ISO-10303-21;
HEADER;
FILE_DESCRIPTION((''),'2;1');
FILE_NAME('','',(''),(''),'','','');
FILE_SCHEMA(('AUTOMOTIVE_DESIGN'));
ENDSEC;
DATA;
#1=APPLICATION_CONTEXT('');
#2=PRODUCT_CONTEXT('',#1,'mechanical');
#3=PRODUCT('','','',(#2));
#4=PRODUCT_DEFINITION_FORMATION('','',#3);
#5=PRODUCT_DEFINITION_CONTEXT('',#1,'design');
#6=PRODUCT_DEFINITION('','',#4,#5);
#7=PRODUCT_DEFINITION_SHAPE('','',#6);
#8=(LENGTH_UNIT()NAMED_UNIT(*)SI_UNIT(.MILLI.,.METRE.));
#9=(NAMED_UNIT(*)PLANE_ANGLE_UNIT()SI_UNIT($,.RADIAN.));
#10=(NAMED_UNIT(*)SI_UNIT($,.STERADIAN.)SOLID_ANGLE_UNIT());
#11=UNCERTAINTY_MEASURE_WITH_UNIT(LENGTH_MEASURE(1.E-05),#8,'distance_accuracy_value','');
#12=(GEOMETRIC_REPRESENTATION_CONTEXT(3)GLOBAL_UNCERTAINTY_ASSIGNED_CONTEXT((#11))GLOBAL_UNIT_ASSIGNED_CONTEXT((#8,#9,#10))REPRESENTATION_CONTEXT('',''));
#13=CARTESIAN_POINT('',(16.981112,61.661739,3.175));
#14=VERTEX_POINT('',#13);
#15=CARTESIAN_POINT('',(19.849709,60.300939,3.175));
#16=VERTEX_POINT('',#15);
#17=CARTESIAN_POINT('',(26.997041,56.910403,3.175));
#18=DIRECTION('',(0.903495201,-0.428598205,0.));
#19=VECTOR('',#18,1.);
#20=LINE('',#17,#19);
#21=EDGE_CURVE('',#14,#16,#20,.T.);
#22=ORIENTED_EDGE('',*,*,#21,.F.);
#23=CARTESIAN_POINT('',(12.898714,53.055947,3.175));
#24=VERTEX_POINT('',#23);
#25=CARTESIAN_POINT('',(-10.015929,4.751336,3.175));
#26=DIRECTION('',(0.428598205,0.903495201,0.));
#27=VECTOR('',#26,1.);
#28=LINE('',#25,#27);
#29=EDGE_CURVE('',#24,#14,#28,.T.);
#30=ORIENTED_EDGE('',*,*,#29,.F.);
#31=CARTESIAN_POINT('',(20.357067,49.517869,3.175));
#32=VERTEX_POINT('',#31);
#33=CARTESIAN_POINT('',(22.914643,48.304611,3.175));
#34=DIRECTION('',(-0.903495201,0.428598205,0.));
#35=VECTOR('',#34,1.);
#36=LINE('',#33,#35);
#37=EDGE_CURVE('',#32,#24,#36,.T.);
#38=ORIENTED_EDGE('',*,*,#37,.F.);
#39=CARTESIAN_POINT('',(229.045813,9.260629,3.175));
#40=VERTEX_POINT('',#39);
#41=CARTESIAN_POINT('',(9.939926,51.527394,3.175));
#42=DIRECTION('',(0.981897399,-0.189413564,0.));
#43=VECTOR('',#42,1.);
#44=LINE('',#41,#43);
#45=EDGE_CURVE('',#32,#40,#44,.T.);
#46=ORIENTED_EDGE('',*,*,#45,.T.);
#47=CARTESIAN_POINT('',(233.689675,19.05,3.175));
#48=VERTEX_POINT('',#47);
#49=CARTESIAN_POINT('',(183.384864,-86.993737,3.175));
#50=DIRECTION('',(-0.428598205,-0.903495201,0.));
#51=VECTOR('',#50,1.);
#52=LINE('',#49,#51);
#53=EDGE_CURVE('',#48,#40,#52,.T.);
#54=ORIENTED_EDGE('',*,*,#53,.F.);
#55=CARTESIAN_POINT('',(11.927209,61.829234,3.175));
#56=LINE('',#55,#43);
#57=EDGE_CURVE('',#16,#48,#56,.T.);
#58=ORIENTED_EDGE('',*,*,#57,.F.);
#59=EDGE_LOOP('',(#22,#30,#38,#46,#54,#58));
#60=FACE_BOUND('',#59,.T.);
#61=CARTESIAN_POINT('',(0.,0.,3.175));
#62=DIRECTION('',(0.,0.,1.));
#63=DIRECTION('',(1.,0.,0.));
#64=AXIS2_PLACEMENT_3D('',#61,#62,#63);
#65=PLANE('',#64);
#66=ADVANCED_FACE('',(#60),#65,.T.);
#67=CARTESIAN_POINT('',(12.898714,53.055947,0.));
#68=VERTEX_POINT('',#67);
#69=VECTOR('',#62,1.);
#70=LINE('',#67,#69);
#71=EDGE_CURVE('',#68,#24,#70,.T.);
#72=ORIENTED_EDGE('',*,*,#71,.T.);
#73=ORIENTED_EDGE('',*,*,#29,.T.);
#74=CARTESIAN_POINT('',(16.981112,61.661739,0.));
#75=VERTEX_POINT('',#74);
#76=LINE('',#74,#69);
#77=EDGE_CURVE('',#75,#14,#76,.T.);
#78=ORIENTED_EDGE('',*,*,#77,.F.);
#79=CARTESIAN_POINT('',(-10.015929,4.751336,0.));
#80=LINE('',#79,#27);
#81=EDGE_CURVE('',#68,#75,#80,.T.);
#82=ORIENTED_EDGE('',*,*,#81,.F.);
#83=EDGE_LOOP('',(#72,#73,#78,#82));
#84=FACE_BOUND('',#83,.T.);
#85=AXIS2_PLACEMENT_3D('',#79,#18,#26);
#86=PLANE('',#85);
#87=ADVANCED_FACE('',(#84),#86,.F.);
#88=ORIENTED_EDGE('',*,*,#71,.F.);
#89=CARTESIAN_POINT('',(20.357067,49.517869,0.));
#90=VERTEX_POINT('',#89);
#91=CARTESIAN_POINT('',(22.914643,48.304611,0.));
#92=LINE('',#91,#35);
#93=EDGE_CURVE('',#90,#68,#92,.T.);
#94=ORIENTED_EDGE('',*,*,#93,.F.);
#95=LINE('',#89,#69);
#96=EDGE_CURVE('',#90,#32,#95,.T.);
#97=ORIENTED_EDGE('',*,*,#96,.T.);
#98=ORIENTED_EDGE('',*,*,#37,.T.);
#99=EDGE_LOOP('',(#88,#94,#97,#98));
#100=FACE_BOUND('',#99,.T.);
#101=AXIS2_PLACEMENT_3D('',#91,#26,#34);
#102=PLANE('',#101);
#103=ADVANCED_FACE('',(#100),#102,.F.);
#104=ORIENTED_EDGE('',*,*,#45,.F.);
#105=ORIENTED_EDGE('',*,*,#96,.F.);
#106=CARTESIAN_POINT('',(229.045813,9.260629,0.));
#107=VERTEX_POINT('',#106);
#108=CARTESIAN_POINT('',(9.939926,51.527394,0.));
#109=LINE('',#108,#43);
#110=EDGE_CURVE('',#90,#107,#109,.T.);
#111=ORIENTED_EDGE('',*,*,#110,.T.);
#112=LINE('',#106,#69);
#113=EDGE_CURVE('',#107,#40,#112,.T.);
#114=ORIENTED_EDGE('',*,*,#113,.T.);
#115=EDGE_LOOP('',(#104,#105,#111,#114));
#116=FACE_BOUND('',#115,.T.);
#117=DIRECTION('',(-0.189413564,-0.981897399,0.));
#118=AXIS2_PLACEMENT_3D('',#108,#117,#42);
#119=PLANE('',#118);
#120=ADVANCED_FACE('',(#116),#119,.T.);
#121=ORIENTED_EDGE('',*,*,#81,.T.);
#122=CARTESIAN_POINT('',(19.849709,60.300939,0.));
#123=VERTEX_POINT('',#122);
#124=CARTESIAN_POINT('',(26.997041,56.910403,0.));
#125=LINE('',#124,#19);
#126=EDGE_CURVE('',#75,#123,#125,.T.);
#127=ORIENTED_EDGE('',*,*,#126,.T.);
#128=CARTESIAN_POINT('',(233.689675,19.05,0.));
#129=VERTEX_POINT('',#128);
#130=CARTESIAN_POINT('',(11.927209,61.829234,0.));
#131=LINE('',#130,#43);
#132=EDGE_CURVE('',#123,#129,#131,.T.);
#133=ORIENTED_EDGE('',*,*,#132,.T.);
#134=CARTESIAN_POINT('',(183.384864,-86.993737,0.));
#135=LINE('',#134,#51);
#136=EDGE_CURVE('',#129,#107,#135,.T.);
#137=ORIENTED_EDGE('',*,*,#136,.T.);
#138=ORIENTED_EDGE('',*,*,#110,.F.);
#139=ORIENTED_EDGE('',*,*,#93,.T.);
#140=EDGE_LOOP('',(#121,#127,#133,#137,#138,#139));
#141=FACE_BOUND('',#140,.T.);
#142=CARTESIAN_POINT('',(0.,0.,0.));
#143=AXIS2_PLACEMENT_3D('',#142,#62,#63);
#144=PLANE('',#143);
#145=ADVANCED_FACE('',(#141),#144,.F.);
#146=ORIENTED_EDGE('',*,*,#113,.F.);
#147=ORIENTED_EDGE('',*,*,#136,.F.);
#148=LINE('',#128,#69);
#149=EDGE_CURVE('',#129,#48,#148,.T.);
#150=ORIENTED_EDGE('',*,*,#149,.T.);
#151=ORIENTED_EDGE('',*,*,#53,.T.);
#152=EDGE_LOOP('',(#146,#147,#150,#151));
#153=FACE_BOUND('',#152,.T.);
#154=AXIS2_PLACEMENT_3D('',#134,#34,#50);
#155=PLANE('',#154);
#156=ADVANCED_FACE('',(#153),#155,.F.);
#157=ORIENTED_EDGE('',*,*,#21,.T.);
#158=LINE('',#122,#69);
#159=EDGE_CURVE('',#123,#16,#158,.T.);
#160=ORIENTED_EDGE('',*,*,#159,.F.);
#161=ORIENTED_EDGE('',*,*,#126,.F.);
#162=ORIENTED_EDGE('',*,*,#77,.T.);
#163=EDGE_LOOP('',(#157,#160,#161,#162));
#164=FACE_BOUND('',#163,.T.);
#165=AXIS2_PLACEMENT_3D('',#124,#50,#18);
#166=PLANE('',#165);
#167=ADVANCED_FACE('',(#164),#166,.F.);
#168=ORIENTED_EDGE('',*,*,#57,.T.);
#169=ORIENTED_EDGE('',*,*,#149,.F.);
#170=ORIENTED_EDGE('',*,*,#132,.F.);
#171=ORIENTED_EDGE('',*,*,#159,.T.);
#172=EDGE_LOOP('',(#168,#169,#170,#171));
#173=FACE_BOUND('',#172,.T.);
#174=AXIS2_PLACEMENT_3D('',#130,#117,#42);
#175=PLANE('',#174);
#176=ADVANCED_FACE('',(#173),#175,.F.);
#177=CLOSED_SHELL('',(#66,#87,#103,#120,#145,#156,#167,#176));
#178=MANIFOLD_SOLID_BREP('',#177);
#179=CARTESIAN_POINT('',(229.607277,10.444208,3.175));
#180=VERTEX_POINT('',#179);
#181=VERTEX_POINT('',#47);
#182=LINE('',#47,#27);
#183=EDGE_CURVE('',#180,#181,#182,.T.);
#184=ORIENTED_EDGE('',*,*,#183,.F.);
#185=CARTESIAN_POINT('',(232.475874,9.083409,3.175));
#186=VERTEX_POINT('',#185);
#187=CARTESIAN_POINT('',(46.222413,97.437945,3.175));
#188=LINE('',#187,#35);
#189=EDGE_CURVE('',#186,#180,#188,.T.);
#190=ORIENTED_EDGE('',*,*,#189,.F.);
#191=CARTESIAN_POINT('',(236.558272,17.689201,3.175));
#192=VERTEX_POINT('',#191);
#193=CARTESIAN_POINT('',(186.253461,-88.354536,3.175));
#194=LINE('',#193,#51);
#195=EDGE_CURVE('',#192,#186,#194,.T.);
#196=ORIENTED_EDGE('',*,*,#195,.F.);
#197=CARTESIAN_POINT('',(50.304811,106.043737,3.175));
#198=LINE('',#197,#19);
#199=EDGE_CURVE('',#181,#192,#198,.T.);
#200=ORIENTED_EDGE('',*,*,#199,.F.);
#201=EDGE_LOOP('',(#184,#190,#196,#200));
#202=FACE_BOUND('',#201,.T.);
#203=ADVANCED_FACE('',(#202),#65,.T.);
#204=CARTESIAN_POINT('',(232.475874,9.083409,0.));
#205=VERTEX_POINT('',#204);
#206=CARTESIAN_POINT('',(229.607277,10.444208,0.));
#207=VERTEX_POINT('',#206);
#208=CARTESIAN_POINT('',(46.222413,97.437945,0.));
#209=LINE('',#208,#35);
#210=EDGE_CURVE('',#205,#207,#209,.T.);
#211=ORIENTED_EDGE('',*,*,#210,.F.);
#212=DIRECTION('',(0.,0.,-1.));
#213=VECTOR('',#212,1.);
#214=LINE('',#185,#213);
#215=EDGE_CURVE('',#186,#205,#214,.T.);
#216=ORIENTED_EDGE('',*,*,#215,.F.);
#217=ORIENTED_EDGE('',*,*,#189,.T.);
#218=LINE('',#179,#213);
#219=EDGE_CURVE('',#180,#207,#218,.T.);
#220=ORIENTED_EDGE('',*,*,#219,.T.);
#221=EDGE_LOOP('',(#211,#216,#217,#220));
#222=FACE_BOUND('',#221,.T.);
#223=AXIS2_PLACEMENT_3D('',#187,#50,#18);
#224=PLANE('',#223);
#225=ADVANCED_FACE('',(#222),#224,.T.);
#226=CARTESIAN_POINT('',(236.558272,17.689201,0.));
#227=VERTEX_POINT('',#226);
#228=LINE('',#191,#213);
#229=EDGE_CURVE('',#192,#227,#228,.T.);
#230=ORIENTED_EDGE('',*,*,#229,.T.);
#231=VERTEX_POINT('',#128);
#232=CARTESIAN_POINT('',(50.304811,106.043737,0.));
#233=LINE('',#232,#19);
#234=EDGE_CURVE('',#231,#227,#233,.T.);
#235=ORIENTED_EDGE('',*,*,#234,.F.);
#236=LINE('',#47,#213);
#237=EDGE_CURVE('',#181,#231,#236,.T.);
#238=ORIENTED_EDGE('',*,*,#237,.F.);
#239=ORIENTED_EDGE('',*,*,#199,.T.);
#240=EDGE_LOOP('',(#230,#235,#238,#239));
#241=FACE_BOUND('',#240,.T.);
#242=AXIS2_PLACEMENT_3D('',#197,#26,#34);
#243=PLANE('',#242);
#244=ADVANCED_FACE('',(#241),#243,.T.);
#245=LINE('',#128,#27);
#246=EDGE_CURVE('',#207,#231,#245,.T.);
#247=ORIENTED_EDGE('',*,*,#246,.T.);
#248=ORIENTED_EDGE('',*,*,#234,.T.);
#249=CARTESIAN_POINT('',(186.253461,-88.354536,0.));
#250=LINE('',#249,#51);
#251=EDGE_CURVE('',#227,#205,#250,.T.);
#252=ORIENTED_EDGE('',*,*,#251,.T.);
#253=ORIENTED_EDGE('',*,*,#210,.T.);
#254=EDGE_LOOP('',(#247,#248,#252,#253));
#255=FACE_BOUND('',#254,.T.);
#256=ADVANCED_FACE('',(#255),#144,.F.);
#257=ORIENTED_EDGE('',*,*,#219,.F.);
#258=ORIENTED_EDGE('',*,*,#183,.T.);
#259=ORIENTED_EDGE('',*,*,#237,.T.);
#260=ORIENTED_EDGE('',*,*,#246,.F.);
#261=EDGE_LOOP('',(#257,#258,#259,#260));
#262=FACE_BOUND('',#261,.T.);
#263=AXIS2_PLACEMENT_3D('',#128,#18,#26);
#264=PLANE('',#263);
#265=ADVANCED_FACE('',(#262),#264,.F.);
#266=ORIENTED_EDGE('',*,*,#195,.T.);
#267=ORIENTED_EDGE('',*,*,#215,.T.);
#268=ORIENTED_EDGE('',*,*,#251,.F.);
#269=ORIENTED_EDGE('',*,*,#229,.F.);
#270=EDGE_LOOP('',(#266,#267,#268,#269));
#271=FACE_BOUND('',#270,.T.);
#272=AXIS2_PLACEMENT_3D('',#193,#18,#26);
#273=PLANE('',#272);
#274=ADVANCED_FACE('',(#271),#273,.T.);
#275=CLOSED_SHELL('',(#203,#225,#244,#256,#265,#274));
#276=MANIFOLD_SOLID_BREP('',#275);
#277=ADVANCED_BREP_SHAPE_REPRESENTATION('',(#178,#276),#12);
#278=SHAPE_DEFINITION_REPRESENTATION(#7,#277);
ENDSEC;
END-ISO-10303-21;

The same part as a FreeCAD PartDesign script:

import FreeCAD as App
import Part
import Sketcher
Q = App.Units.Quantity

doc = App.newDocument("Part")
body = doc.addObject("PartDesign::Body", "Body")

# Sketch on XY plane
sketch1 = body.newObject("Sketcher::SketchObject", "Sketch")
sketch1.AttachmentSupport = (doc.getObject("XY_Plane"), [""])
sketch1.MapMode = "FlatFace"
sketch1.addGeometry(Part.LineSegment(App.Vector(233.689675, 19.05, 0), App.Vector(0, 19.05, 0)), False)
sketch1.addGeometry(Part.LineSegment(App.Vector(0, 19.05, 0), App.Vector(-2.639109, 20.301935, 0)), False)
sketch1.addGeometry(Part.LineSegment(App.Vector(-2.639109, 20.301935, 0), App.Vector(-6.721507, 11.696144, 0)), False)
sketch1.addGeometry(Part.LineSegment(App.Vector(-6.721507, 11.696144, 0), App.Vector(-4.082398, 10.444208, 0)), False)
sketch1.addGeometry(Part.LineSegment(App.Vector(-4.082398, 10.444208, 0), App.Vector(-7.376854, 3.499417, 0)), False)
sketch1.addGeometry(Part.LineSegment(App.Vector(-7.376854, 3.499417, 0), App.Vector(0, 0, 0)), False)
sketch1.addGeometry(Part.LineSegment(App.Vector(0, 0, 0), App.Vector(224.652775, 0, 0)), False)
sketch1.addGeometry(Part.LineSegment(App.Vector(224.652775, 0, 0), App.Vector(224.700845, 0.101333, 0)), False)
sketch1.addGeometry(Part.LineSegment(App.Vector(224.700845, 0.101333, 0), App.Vector(116.204157, 1.00303, 0)), False)
sketch1.addGeometry(Part.LineSegment(App.Vector(116.204157, 1.00303, 0), App.Vector(116.2044, 1.032233, 0)), False)
sketch1.addGeometry(Part.LineSegment(App.Vector(116.2044, 1.032233, 0), App.Vector(224.714645, 0.130423, 0)), False)
sketch1.addGeometry(Part.LineSegment(App.Vector(224.714645, 0.130423, 0), App.Vector(229.607277, 10.444208, 0)), False)
sketch1.addGeometry(Part.LineSegment(App.Vector(229.607277, 10.444208, 0), App.Vector(232.475874, 9.083409, 0)), False)
sketch1.addGeometry(Part.LineSegment(App.Vector(232.475874, 9.083409, 0), App.Vector(236.558272, 17.689201, 0)), False)
sketch1.addGeometry(Part.LineSegment(App.Vector(236.558272, 17.689201, 0), App.Vector(233.689675, 19.05, 0)), False)
sketch1.addConstraint(Sketcher.Constraint("Coincident", 0, 2, 1, 1))
sketch1.addConstraint(Sketcher.Constraint("Coincident", 1, 2, 2, 1))
sketch1.addConstraint(Sketcher.Constraint("Coincident", 2, 2, 3, 1))
sketch1.addConstraint(Sketcher.Constraint("Coincident", 3, 2, 4, 1))
sketch1.addConstraint(Sketcher.Constraint("Coincident", 4, 2, 5, 1))
sketch1.addConstraint(Sketcher.Constraint("Coincident", 5, 2, 6, 1))
sketch1.addConstraint(Sketcher.Constraint("Coincident", 6, 2, 7, 1))
sketch1.addConstraint(Sketcher.Constraint("Coincident", 7, 2, 8, 1))
sketch1.addConstraint(Sketcher.Constraint("Coincident", 8, 2, 9, 1))
sketch1.addConstraint(Sketcher.Constraint("Coincident", 9, 2, 10, 1))
sketch1.addConstraint(Sketcher.Constraint("Coincident", 10, 2, 11, 1))
sketch1.addConstraint(Sketcher.Constraint("Coincident", 11, 2, 12, 1))
sketch1.addConstraint(Sketcher.Constraint("Coincident", 12, 2, 13, 1))
sketch1.addConstraint(Sketcher.Constraint("Coincident", 13, 2, 14, 1))
sketch1.addConstraint(Sketcher.Constraint("Coincident", 14, 2, 0, 1))
sketch1.addConstraint(Sketcher.Constraint("Horizontal", 0))
sketch1.addConstraint(Sketcher.Constraint("Horizontal", 6))
sketch1.addConstraint(Sketcher.Constraint("Coincident", 5, 2, -1, 1))
sketch1.addConstraint(Sketcher.Constraint("PointOnObject", 0, 2, -2))
sketch1.addConstraint(Sketcher.Constraint("Perpendicular", 1, 2))
sketch1.addConstraint(Sketcher.Constraint("Perpendicular", 2, 3))
sketch1.addConstraint(Sketcher.Constraint("Perpendicular", 3, 4))
sketch1.addConstraint(Sketcher.Constraint("Perpendicular", 4, 5))
sketch1.addConstraint(Sketcher.Constraint("Perpendicular", 5, 7))
sketch1.addConstraint(Sketcher.Constraint("Perpendicular", 8, 9))
sketch1.addConstraint(Sketcher.Constraint("Parallel", 8, 10))
sketch1.addConstraint(Sketcher.Constraint("Parallel", 7, 11))
sketch1.addConstraint(Sketcher.Constraint("Perpendicular", 11, 12))
sketch1.addConstraint(Sketcher.Constraint("Perpendicular", 12, 13))
sketch1.addConstraint(Sketcher.Constraint("Perpendicular", 13, 14))
sketch1.addConstraint(Sketcher.Constraint("Horizontal", 3, 2, 11, 2))
sketch1.addConstraint(Sketcher.Constraint("Equal", 1, 3))
sketch1.addConstraint(Sketcher.Constraint("Equal", 2, 13))
sketch1.addConstraint(Sketcher.Constraint("DistanceY", -1, 1, 0, 2, Q("0.75 in")))
sketch1.addConstraint(Sketcher.Constraint("Distance", 1, Q("0.115 in")))
sketch1.addConstraint(Sketcher.Constraint("Distance", 2, Q("0.375 in")))
sketch1.addConstraint(Sketcher.Constraint("Distance", 12, Q("0.125 in")))
sketch1.addConstraint(Sketcher.Constraint("DistanceY", 7, 2, 3, 2, Q("0.4071998 in")))
sketch1.addConstraint(Sketcher.Constraint("DistanceY", 7, 2, 8, 2, Q("0.0354999 in")))
sketch1.addConstraint(Sketcher.Constraint("DistanceX", -1, 1, 9, 2, 116.2044))
sketch1.addConstraint(Sketcher.Constraint("DistanceY", -1, 1, 13, 2, 17.689201))
sketch1.addConstraint(Sketcher.Constraint("DistanceY", 7, 2, 9, 2, 0.930901))
sketch1.addConstraint(Sketcher.Constraint("DistanceX", 7, 2, 10, 2, 0.0138))
sketch1.addConstraint(Sketcher.Constraint("DistanceX", 0, 2, 0, 1, 233.689675))
pad1 = body.newObject("PartDesign::Pad", "Pad")
pad1.Profile = sketch1
pad1.Length = Q("0.125 in")

# Sketch on XY plane
sketch2 = body.newObject("Sketcher::SketchObject", "Sketch001")
sketch2.AttachmentSupport = (doc.getObject("XY_Plane"), [""])
sketch2.MapMode = "FlatFace"
sketch2.AttachmentOffset = App.Placement(App.Vector(0, 0, 0.125 * 25.4), App.Rotation())
sketch2.addGeometry(Part.LineSegment(App.Vector(-7.4, 9.5, 0), App.Vector(-7.4, 0, 0)), False)
sketch2.addGeometry(Part.LineSegment(App.Vector(-7.4, 0, 0), App.Vector(236.6, 0, 0)), False)
sketch2.addGeometry(Part.LineSegment(App.Vector(236.6, 0, 0), App.Vector(236.6, 4.8, 0)), False)
sketch2.addGeometry(Part.LineSegment(App.Vector(236.6, 4.8, 0), App.Vector(229.2, 9.5, 0)), False)
sketch2.addGeometry(Part.LineSegment(App.Vector(229.2, 9.5, 0), App.Vector(-7.4, 9.5, 0)), False)
sketch2.addConstraint(Sketcher.Constraint("Coincident", 0, 2, 1, 1))
sketch2.addConstraint(Sketcher.Constraint("Coincident", 1, 2, 2, 1))
sketch2.addConstraint(Sketcher.Constraint("Coincident", 2, 2, 3, 1))
sketch2.addConstraint(Sketcher.Constraint("Coincident", 3, 2, 4, 1))
sketch2.addConstraint(Sketcher.Constraint("Coincident", 4, 2, 0, 1))
sketch2.addConstraint(Sketcher.Constraint("Vertical", 0))
sketch2.addConstraint(Sketcher.Constraint("Horizontal", 1))
sketch2.addConstraint(Sketcher.Constraint("Vertical", 2))
sketch2.addConstraint(Sketcher.Constraint("Horizontal", 4))
sketch2.addConstraint(Sketcher.Constraint("PointOnObject", 0, 2, -1))
sketch2.addConstraint(Sketcher.Constraint("DistanceY", 0, 2, 0, 1, Q("0.375 in")))
sketch2.addConstraint(Sketcher.Constraint("DistanceY", 2, 1, 2, 2, Q("0.1875 in")))
sketch2.addConstraint(Sketcher.Constraint("DistanceX", 4, 2, 4, 1, 236.548079))
sketch2.addConstraint(Sketcher.Constraint("Distance", 3, 8.789191))
sketch2.addConstraint(Sketcher.Constraint("DistanceX", 0, 2, -1, 1, 7.376854))
pocket1 = body.newObject("PartDesign::Pocket", "Pocket")
pocket1.Profile = sketch2
pocket1.Type = "ThroughAll"

# Sketch on XY plane
sketch3 = body.newObject("Sketcher::SketchObject", "Sketch002")
sketch3.AttachmentSupport = (doc.getObject("XY_Plane"), [""])
sketch3.MapMode = "FlatFace"
sketch3.AttachmentOffset = App.Placement(App.Vector(0, 0, 0.125 * 25.4), App.Rotation())
sketch3.addGeometry(Part.LineSegment(App.Vector(-4.1, 10.4, 0), App.Vector(-4.5, 9.5, 0)), False)
sketch3.addGeometry(Part.LineSegment(App.Vector(-4.5, 9.5, 0), App.Vector(-2.1, 9.5, 0)), False)
sketch3.addGeometry(Part.LineSegment(App.Vector(-2.1, 9.5, 0), App.Vector(-4.1, 10.4, 0)), False)
sketch3.addConstraint(Sketcher.Constraint("Coincident", 0, 2, 1, 1))
sketch3.addConstraint(Sketcher.Constraint("Coincident", 1, 2, 2, 1))
sketch3.addConstraint(Sketcher.Constraint("Coincident", 2, 2, 0, 1))
sketch3.addConstraint(Sketcher.Constraint("Horizontal", 1))
sketch3.addConstraint(Sketcher.Constraint("Perpendicular", 0, 2))
sketch3.addConstraint(Sketcher.Constraint("DistanceY", -1, 1, 0, 2, Q("0.375 in")))
sketch3.addConstraint(Sketcher.Constraint("Distance", 0, 1.017391))
sketch3.addConstraint(Sketcher.Constraint("DistanceX", 1, 1, 1, 2, 2.373765))
sketch3.addConstraint(Sketcher.Constraint("DistanceX", 0, 2, -1, 1, 4.51845))
pocket2 = body.newObject("PartDesign::Pocket", "Pocket001")
pocket2.Profile = sketch3
pocket2.Type = "ThroughAll"

# Sketch on XY plane
sketch4 = body.newObject("Sketcher::SketchObject", "Sketch003")
sketch4.AttachmentSupport = (doc.getObject("XY_Plane"), [""])
sketch4.MapMode = "FlatFace"
sketch4.AttachmentOffset = App.Placement(App.Vector(0, 0, 0.125 * 25.4), App.Rotation())
sketch4.addGeometry(Part.LineSegment(App.Vector(40, 111, 0), App.Vector(-7, 12, 0)), False)
sketch4.addGeometry(Part.LineSegment(App.Vector(-7, 12, 0), App.Vector(187, -80, 0)), False)
sketch4.addGeometry(Part.LineSegment(App.Vector(187, -80, 0), App.Vector(234, 19, 0)), False)
sketch4.addGeometry(Part.LineSegment(App.Vector(234, 19, 0), App.Vector(40, 111, 0)), False)
sketch4.addConstraint(Sketcher.Constraint("Coincident", 0, 2, 1, 1))
sketch4.addConstraint(Sketcher.Constraint("Coincident", 1, 2, 2, 1))
sketch4.addConstraint(Sketcher.Constraint("Coincident", 2, 2, 3, 1))
sketch4.addConstraint(Sketcher.Constraint("Coincident", 3, 2, 0, 1))
sketch4.addConstraint(Sketcher.Constraint("Perpendicular", 0, 1))
sketch4.addConstraint(Sketcher.Constraint("Perpendicular", 1, 2))
sketch4.addConstraint(Sketcher.Constraint("Perpendicular", 2, 3))
sketch4.addConstraint(Sketcher.Constraint("DistanceY", -1, 1, 2, 2, Q("0.75 in")))
sketch4.addConstraint(Sketcher.Constraint("Distance", 1, Q("8.4275 in")))
sketch4.addConstraint(Sketcher.Constraint("DistanceX", -1, 1, 1, 2, 186.67932))
sketch4.addConstraint(Sketcher.Constraint("DistanceY", -1, 1, 3, 2, 110.795089))
sketch4.addConstraint(Sketcher.Constraint("Distance", 0, 109.683975))
pocket3 = body.newObject("PartDesign::Pocket", "Pocket002")
pocket3.Profile = sketch4
pocket3.Type = "ThroughAll"
body2 = doc.addObject("PartDesign::Body", "Body001")

# Sketch on XY plane
sketch5 = body2.newObject("Sketcher::SketchObject", "Sketch004")
sketch5.AttachmentSupport = (doc.getObject("XY_Plane001"), [""])
sketch5.MapMode = "FlatFace"
sketch5.AttachmentOffset = App.Placement(App.Vector(0, 0, 0.125 * 25.4), App.Rotation())
sketch5.addGeometry(Part.LineSegment(App.Vector(233.689675, 19.05, 0), App.Vector(19.849709, 60.300939, 0)), False)
sketch5.addGeometry(Part.LineSegment(App.Vector(19.849709, 60.300939, 0), App.Vector(16.981112, 61.661739, 0)), False)
sketch5.addGeometry(Part.LineSegment(App.Vector(16.981112, 61.661739, 0), App.Vector(12.898714, 53.055947, 0)), False)
sketch5.addGeometry(Part.LineSegment(App.Vector(12.898714, 53.055947, 0), App.Vector(20.357067, 49.517869, 0)), False)
sketch5.addGeometry(Part.LineSegment(App.Vector(20.357067, 49.517869, 0), App.Vector(229.045813, 9.260629, 0)), False)
sketch5.addGeometry(Part.LineSegment(App.Vector(229.045813, 9.260629, 0), App.Vector(229.607277, 10.444208, 0)), False)
sketch5.addGeometry(Part.LineSegment(App.Vector(229.607277, 10.444208, 0), App.Vector(233.689675, 19.05, 0)), False)
sketch5.addConstraint(Sketcher.Constraint("Coincident", 0, 2, 1, 1))
sketch5.addConstraint(Sketcher.Constraint("Coincident", 1, 2, 2, 1))
sketch5.addConstraint(Sketcher.Constraint("Coincident", 2, 2, 3, 1))
sketch5.addConstraint(Sketcher.Constraint("Coincident", 3, 2, 4, 1))
sketch5.addConstraint(Sketcher.Constraint("Coincident", 4, 2, 5, 1))
sketch5.addConstraint(Sketcher.Constraint("Coincident", 5, 2, 6, 1))
sketch5.addConstraint(Sketcher.Constraint("Coincident", 6, 2, 0, 1))
sketch5.addConstraint(Sketcher.Constraint("DistanceY", -1, 1, 6, 2, Q("0.75 in")))
sketch5.addConstraint(Sketcher.Constraint("Distance", 1, Q("0.125 in")))
sketch5.addConstraint(Sketcher.Constraint("Distance", 2, Q("0.375 in")))
sketch5.addConstraint(Sketcher.Constraint("Distance", 3, Q("0.325 in")))
sketch5.addConstraint(Sketcher.Constraint("Distance", 6, Q("0.375 in")))
sketch5.addConstraint(Sketcher.Constraint("Distance", 5, 1.310001))
sketch5.addConstraint(Sketcher.Constraint("DistanceY", 0, 2, 1, 2, 1.360799))
sketch5.addConstraint(Sketcher.Constraint("DistanceX", 1, 2, 4, 2, 212.064702))
sketch5.addConstraint(Sketcher.Constraint("DistanceX", 2, 2, 4, 2, 216.147099))
sketch5.addConstraint(Sketcher.Constraint("DistanceX", -1, 1, 0, 2, 19.849709))
sketch5.addConstraint(Sketcher.Constraint("DistanceY", -1, 1, 0, 2, 60.300939))
sketch5.addConstraint(Sketcher.Constraint("DistanceY", -1, 1, 3, 2, 49.517869))
sketch5.addConstraint(Sketcher.Constraint("DistanceY", -1, 1, 4, 2, 9.260629))
sketch5.addConstraint(Sketcher.Constraint("DistanceY", -1, 1, 5, 2, 10.444208))
pad2 = body2.newObject("PartDesign::Pad", "Pad001")
pad2.Profile = sketch5
pad2.Length = Q("0.125 in")
pad2.Reversed = True

doc.recompute()
